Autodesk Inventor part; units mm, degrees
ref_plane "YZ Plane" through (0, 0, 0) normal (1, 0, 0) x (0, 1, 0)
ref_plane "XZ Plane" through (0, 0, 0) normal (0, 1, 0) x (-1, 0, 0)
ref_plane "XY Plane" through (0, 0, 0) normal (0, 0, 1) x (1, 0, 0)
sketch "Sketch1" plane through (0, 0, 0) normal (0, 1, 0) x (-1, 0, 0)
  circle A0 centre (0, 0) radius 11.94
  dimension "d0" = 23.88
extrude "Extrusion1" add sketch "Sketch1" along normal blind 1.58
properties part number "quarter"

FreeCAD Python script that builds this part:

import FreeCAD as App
import Part
import Sketcher
from FreeCAD import Vector

doc = App.newDocument("Part")
body = doc.addObject("PartDesign::Body", "Body")

sketch1 = doc.addObject("Sketcher::SketchObject", "Sketch")
body.addObject(sketch1)
sketch1.AttachmentSupport = (doc.XZ_Plane, [""])
sketch1.MapMode = "FlatFace"
sketch1.addGeometry(Part.Circle(Vector(0, 0, 0), Vector(0, 0, 1), 12), False)
sketch1.addConstraint(Sketcher.Constraint("Coincident", 0, 3, -1, 1))
sketch1.addConstraint(Sketcher.Constraint("Diameter", 0, 23.88))
pad1 = doc.addObject("PartDesign::Pad", "Pad")
body.addObject(pad1)
pad1.Profile = sketch1
pad1.Length = 1.58
pad1.Reversed = True

doc.recompute()
